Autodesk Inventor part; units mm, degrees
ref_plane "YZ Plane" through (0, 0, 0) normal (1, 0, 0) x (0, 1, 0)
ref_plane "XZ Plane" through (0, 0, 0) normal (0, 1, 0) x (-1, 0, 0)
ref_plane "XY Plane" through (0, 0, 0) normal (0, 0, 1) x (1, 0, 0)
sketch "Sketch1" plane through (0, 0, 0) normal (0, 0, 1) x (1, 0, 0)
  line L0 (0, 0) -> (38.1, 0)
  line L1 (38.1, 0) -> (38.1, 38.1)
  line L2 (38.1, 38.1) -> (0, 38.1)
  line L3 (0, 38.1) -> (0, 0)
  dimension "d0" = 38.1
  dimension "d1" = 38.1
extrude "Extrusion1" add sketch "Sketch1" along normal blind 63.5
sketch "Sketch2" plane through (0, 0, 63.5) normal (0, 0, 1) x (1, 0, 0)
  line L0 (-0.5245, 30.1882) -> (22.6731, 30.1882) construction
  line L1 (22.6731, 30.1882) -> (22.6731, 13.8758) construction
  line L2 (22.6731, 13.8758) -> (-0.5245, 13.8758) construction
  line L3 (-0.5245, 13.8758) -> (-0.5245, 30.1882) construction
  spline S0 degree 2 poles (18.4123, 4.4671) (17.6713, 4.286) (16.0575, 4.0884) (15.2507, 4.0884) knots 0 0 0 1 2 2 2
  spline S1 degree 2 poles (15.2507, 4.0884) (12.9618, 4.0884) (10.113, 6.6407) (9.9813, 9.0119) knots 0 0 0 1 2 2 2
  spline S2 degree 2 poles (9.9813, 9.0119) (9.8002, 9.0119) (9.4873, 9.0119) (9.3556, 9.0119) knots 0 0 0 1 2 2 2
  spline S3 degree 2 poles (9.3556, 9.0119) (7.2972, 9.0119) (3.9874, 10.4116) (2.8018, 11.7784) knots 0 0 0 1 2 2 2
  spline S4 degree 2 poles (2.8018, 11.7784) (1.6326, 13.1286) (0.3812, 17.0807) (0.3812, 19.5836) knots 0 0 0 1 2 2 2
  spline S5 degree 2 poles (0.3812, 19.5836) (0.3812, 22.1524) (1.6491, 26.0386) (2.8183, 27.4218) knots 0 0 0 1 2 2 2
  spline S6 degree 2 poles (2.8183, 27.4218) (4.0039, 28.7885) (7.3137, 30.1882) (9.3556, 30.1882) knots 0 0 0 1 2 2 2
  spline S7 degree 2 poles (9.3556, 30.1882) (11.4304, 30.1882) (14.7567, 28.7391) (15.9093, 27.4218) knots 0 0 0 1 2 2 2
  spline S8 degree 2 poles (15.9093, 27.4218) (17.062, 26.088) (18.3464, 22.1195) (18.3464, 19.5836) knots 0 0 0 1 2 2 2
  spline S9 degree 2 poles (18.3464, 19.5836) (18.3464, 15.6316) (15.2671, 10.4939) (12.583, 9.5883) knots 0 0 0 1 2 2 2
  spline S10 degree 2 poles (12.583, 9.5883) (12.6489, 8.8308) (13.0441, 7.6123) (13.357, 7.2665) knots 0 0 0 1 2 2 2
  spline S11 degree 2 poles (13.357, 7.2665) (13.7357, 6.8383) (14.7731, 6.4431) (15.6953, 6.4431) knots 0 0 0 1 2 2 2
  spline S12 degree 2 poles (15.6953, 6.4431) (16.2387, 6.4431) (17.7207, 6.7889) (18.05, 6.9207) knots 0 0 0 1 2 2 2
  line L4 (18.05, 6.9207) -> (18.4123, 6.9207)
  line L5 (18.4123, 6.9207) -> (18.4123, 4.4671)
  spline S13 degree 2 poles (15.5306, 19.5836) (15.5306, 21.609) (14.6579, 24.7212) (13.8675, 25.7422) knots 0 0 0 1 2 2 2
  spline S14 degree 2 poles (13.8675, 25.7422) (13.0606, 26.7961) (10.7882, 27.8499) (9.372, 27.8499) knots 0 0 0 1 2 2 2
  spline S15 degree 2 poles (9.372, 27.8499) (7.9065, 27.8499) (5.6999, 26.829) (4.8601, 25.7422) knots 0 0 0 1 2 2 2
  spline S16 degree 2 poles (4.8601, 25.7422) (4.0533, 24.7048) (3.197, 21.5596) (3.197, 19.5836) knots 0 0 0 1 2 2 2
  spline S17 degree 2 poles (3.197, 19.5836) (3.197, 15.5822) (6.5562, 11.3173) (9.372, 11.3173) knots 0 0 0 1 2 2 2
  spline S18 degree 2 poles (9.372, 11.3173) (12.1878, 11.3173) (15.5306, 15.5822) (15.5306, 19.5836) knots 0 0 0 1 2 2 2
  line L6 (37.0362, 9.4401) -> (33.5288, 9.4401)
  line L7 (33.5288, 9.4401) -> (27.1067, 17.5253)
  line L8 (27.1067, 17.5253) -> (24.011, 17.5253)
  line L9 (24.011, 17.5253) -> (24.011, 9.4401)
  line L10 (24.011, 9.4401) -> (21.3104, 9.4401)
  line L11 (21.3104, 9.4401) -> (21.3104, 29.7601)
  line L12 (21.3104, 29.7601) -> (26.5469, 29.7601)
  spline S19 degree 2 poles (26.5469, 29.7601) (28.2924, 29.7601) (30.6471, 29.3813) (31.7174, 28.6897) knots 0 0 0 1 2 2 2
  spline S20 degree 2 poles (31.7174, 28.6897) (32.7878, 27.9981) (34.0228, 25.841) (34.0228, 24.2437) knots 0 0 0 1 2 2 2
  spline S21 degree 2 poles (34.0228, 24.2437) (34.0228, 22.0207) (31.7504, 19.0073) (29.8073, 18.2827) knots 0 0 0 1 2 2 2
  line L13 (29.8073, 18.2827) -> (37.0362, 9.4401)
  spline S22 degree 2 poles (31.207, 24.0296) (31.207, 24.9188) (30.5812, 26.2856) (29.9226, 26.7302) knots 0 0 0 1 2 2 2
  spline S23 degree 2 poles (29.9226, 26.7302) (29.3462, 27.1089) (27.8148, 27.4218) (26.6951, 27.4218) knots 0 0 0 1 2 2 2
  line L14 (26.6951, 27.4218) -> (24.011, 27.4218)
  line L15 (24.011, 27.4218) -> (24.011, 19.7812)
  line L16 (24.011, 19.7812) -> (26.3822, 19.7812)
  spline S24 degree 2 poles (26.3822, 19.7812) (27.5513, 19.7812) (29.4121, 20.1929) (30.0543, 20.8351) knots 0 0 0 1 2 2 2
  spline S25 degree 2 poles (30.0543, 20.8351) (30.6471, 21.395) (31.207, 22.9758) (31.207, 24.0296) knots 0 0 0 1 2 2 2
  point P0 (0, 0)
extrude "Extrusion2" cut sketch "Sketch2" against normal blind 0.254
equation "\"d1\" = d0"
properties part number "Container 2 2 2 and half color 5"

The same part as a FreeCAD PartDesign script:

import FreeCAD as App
import Part
import Sketcher
Q = App.Units.Quantity

doc = App.newDocument("Part")
params = doc.addObject("Spreadsheet::Sheet", "Params")
for row, (alias, value) in enumerate([
    ("sketch1_width", "1.5 in"),
    ("pad1_length", "2.5 in"),
    ("sketch2_height", "0.8 in"),
    ("pocket1_length", "0.01 in"),
], start=1):
    params.set(f"A{row}", alias)
    params.set(f"B{row}", "=" + value)
    params.setAlias(f"B{row}", alias)

body = doc.addObject("PartDesign::Body", "Body")

# Sketch on XY plane
sketch1 = body.newObject("Sketcher::SketchObject", "Sketch")
sketch1.AttachmentSupport = (doc.getObject("XY_Plane"), [""])
sketch1.MapMode = "FlatFace"
sketch1.addGeometry([
    Part.LineSegment(App.Vector(0, 38, 0), App.Vector(0, 0, 0)),
    Part.LineSegment(App.Vector(0, 0, 0), App.Vector(38, 0, 0)),
    Part.LineSegment(App.Vector(38, 0, 0), App.Vector(38, 38, 0)),
    Part.LineSegment(App.Vector(38, 38, 0), App.Vector(0, 38, 0)),
], False)
sketch1.addConstraint([
    Sketcher.Constraint("Coincident", 0, 2, 1, 1),
    Sketcher.Constraint("Coincident", 1, 2, 2, 1),
    Sketcher.Constraint("Coincident", 2, 2, 3, 1),
    Sketcher.Constraint("Coincident", 3, 2, 0, 1),
    Sketcher.Constraint("Vertical", 0),
    Sketcher.Constraint("Horizontal", 1),
    Sketcher.Constraint("Vertical", 2),
    Sketcher.Constraint("Horizontal", 3),
    Sketcher.Constraint("Coincident", 0, 2, -1, 1),
    Sketcher.Constraint("Equal", 3, 0),
    Sketcher.Constraint("DistanceX", 1, 1, 1, 2, Q("1.5 in")),
])
sketch1.setExpression("Constraints[10]", "Params.sketch1_width")
pad1 = body.newObject("PartDesign::Pad", "Pad")
pad1.Profile = sketch1
pad1.setExpression("Length", "Params.pad1_length")

# Sketch on XY plane
sketch2 = body.newObject("Sketcher::SketchObject", "Sketch001")
sketch2.AttachmentSupport = (doc.getObject("XY_Plane"), [""])
sketch2.MapMode = "FlatFace"
sketch2.AttachmentOffset = App.Placement(App.Vector(0, 0, 2.5 * 25.4), App.Rotation())
sketch2.addGeometry([
    Part.BSplineCurve([App.Vector(18.4123, 4.4671, 0), App.Vector(17.6713, 4.286, 0), App.Vector(16.0575, 4.0884, 0), App.Vector(15.2507, 4.0884, 0)], [3, 1, 3], [0, 1, 2], False, 2, [1, 1, 1, 1], False),  # 0
    Part.LineSegment(App.Vector(18.4123, 4.4671, 0), App.Vector(18.4123, 6.9207, 0)),  # 1
    Part.LineSegment(App.Vector(18.4123, 6.9207, 0), App.Vector(18.05, 6.9207, 0)),  # 2
    Part.BSplineCurve([App.Vector(15.6953, 6.4431, 0), App.Vector(16.2387, 6.4431, 0), App.Vector(17.7207, 6.7889, 0), App.Vector(18.05, 6.9207, 0)], [3, 1, 3], [0, 1, 2], False, 2, [1, 1, 1, 1], False),  # 3
    Part.BSplineCurve([App.Vector(13.357, 7.2665, 0), App.Vector(13.7357, 6.8383, 0), App.Vector(14.7731, 6.4431, 0), App.Vector(15.6953, 6.4431, 0)], [3, 1, 3], [0, 1, 2], False, 2, [1, 1, 1, 1], False),  # 4
    Part.BSplineCurve([App.Vector(12.583, 9.5883, 0), App.Vector(12.6489, 8.8308, 0), App.Vector(13.0441, 7.6123, 0), App.Vector(13.357, 7.2665, 0)], [3, 1, 3], [0, 1, 2], False, 2, [1, 1, 1, 1], False),  # 5
    Part.BSplineCurve([App.Vector(18.3464, 19.5836, 0), App.Vector(18.3464, 15.6316, 0), App.Vector(15.2671, 10.4939, 0), App.Vector(12.583, 9.5883, 0)], [3, 1, 3], [0, 1, 2], False, 2, [1, 1, 1, 1], False),  # 6
    Part.BSplineCurve([App.Vector(15.9093, 27.4218, 0), App.Vector(17.062, 26.088, 0), App.Vector(18.3464, 22.1195, 0), App.Vector(18.3464, 19.5836, 0)], [3, 1, 3], [0, 1, 2], False, 2, [1, 1, 1, 1], False),  # 7
    Part.BSplineCurve([App.Vector(9.3556, 30.1882, 0), App.Vector(11.4304, 30.1882, 0), App.Vector(14.7567, 28.7391, 0), App.Vector(15.9093, 27.4218, 0)], [3, 1, 3], [0, 1, 2], False, 2, [1, 1, 1, 1], False),  # 8
    Part.BSplineCurve([App.Vector(2.8183, 27.4218, 0), App.Vector(4.0039, 28.7885, 0), App.Vector(7.3137, 30.1882, 0), App.Vector(9.3556, 30.1882, 0)], [3, 1, 3], [0, 1, 2], False, 2, [1, 1, 1, 1], False),  # 9
    Part.BSplineCurve([App.Vector(0.3812, 19.5836, 0), App.Vector(0.3812, 22.1524, 0), App.Vector(1.6491, 26.0386, 0), App.Vector(2.8183, 27.4218, 0)], [3, 1, 3], [0, 1, 2], False, 2, [1, 1, 1, 1], False),  # 10
    Part.BSplineCurve([App.Vector(2.8018, 11.7784, 0), App.Vector(1.6326, 13.1286, 0), App.Vector(0.3812, 17.0807, 0), App.Vector(0.3812, 19.5836, 0)], [3, 1, 3], [0, 1, 2], False, 2, [1, 1, 1, 1], False),  # 11
    Part.BSplineCurve([App.Vector(9.3556, 9.0119, 0), App.Vector(7.2972, 9.0119, 0), App.Vector(3.9874, 10.4116, 0), App.Vector(2.8018, 11.7784, 0)], [3, 1, 3], [0, 1, 2], False, 2, [1, 1, 1, 1], False),  # 12
    Part.BSplineCurve([App.Vector(9.9813, 9.0119, 0), App.Vector(9.8002, 9.0119, 0), App.Vector(9.4873, 9.0119, 0), App.Vector(9.3556, 9.0119, 0)], [3, 1, 3], [0, 1, 2], False, 2, [1, 1, 1, 1], False),  # 13
    Part.BSplineCurve([App.Vector(15.2507, 4.0884, 0), App.Vector(12.9618, 4.0884, 0), App.Vector(10.113, 6.6407, 0), App.Vector(9.9813, 9.0119, 0)], [3, 1, 3], [0, 1, 2], False, 2, [1, 1, 1, 1], False),  # 14
    Part.BSplineCurve([App.Vector(15.5306, 19.5836, 0), App.Vector(15.5306, 21.609, 0), App.Vector(14.6579, 24.7212, 0), App.Vector(13.8675, 25.7422, 0)], [3, 1, 3], [0, 1, 2], False, 2, [1, 1, 1, 1], False),  # 15
    Part.BSplineCurve([App.Vector(9.372, 11.3173, 0), App.Vector(12.1878, 11.3173, 0), App.Vector(15.5306, 15.5822, 0), App.Vector(15.5306, 19.5836, 0)], [3, 1, 3], [0, 1, 2], False, 2, [1, 1, 1, 1], False),  # 16
    Part.BSplineCurve([App.Vector(3.197, 19.5836, 0), App.Vector(3.197, 15.5822, 0), App.Vector(6.5562, 11.3173, 0), App.Vector(9.372, 11.3173, 0)], [3, 1, 3], [0, 1, 2], False, 2, [1, 1, 1, 1], False),  # 17
    Part.BSplineCurve([App.Vector(4.8601, 25.7422, 0), App.Vector(4.0533, 24.7048, 0), App.Vector(3.197, 21.5596, 0), App.Vector(3.197, 19.5836, 0)], [3, 1, 3], [0, 1, 2], False, 2, [1, 1, 1, 1], False),  # 18
    Part.BSplineCurve([App.Vector(9.372, 27.8499, 0), App.Vector(7.9065, 27.8499, 0), App.Vector(5.6999, 26.829, 0), App.Vector(4.8601, 25.7422, 0)], [3, 1, 3], [0, 1, 2], False, 2, [1, 1, 1, 1], False),  # 19
    Part.BSplineCurve([App.Vector(13.8675, 25.7422, 0), App.Vector(13.0606, 26.7961, 0), App.Vector(10.7882, 27.8499, 0), App.Vector(9.372, 27.8499, 0)], [3, 1, 3], [0, 1, 2], False, 2, [1, 1, 1, 1], False),  # 20
    Part.LineSegment(App.Vector(33.5288, 9.4401, 0), App.Vector(37.0362, 9.4401, 0)),  # 21
    Part.LineSegment(App.Vector(37.0362, 9.4401, 0), App.Vector(29.8073, 18.2827, 0)),  # 22
    Part.BSplineCurve([App.Vector(34.0228, 24.2437, 0), App.Vector(34.0228, 22.0207, 0), App.Vector(31.7504, 19.0073, 0), App.Vector(29.8073, 18.2827, 0)], [3, 1, 3], [0, 1, 2], False, 2, [1, 1, 1, 1], False),  # 23
    Part.BSplineCurve([App.Vector(31.7174, 28.6897, 0), App.Vector(32.7878, 27.9981, 0), App.Vector(34.0228, 25.841, 0), App.Vector(34.0228, 24.2437, 0)], [3, 1, 3], [0, 1, 2], False, 2, [1, 1, 1, 1], False),  # 24
    Part.BSplineCurve([App.Vector(26.5469, 29.7601, 0), App.Vector(28.2924, 29.7601, 0), App.Vector(30.6471, 29.3813, 0), App.Vector(31.7174, 28.6897, 0)], [3, 1, 3], [0, 1, 2], False, 2, [1, 1, 1, 1], False),  # 25
    Part.LineSegment(App.Vector(26.5469, 29.7601, 0), App.Vector(21.3104, 29.7601, 0)),  # 26
    Part.LineSegment(App.Vector(21.3104, 29.7601, 0), App.Vector(21.3104, 9.4401, 0)),  # 27
    Part.LineSegment(App.Vector(21.3104, 9.4401, 0), App.Vector(24.011, 9.4401, 0)),  # 28
    Part.LineSegment(App.Vector(24.011, 9.4401, 0), App.Vector(24.011, 17.5253, 0)),  # 29
    Part.LineSegment(App.Vector(24.011, 17.5253, 0), App.Vector(27.1067, 17.5253, 0)),  # 30
    Part.LineSegment(App.Vector(27.1067, 17.5253, 0), App.Vector(33.5288, 9.4401, 0)),  # 31
    Part.BSplineCurve([App.Vector(31.207, 24.0296, 0), App.Vector(31.207, 24.9188, 0), App.Vector(30.5812, 26.2856, 0), App.Vector(29.9226, 26.7302, 0)], [3, 1, 3], [0, 1, 2], False, 2, [1, 1, 1, 1], False),  # 32
    Part.BSplineCurve([App.Vector(30.0543, 20.8351, 0), App.Vector(30.6471, 21.395, 0), App.Vector(31.207, 22.9758, 0), App.Vector(31.207, 24.0296, 0)], [3, 1, 3], [0, 1, 2], False, 2, [1, 1, 1, 1], False),  # 33
    Part.BSplineCurve([App.Vector(26.3822, 19.7812, 0), App.Vector(27.5513, 19.7812, 0), App.Vector(29.4121, 20.1929, 0), App.Vector(30.0543, 20.8351, 0)], [3, 1, 3], [0, 1, 2], False, 2, [1, 1, 1, 1], False),  # 34
    Part.LineSegment(App.Vector(26.3822, 19.7812, 0), App.Vector(24.011, 19.7812, 0)),  # 35
    Part.LineSegment(App.Vector(24.011, 19.7812, 0), App.Vector(24.011, 27.4218, 0)),  # 36
    Part.LineSegment(App.Vector(24.011, 27.4218, 0), App.Vector(26.6951, 27.4218, 0)),  # 37
    Part.BSplineCurve([App.Vector(29.9226, 26.7302, 0), App.Vector(29.3462, 27.1089, 0), App.Vector(27.8148, 27.4218, 0), App.Vector(26.6951, 27.4218, 0)], [3, 1, 3], [0, 1, 2], False, 2, [1, 1, 1, 1], False),  # 38
], False)
sketch2.addConstraint([
    Sketcher.Constraint("Block", 0),
    Sketcher.Constraint("Block", 3),
    Sketcher.Constraint("Block", 4),
    Sketcher.Constraint("Block", 5),
    Sketcher.Constraint("Block", 6),
    Sketcher.Constraint("Block", 7),
    Sketcher.Constraint("Block", 8),
    Sketcher.Constraint("Block", 9),
    Sketcher.Constraint("Block", 10),
    Sketcher.Constraint("Block", 11),
    Sketcher.Constraint("Block", 12),
    Sketcher.Constraint("Block", 13),
    Sketcher.Constraint("Block", 14),
    Sketcher.Constraint("Block", 15),
    Sketcher.Constraint("Block", 16),
    Sketcher.Constraint("Block", 17),
    Sketcher.Constraint("Block", 18),
    Sketcher.Constraint("Block", 19),
    Sketcher.Constraint("Block", 20),
    Sketcher.Constraint("Block", 23),
    Sketcher.Constraint("Block", 24),
    Sketcher.Constraint("Block", 25),
    Sketcher.Constraint("Block", 32),
    Sketcher.Constraint("Block", 33),
    Sketcher.Constraint("Block", 34),
    Sketcher.Constraint("Block", 38),
    Sketcher.Constraint("Coincident", 0, 1, 1, 1),
    Sketcher.Constraint("Coincident", 1, 2, 2, 1),
    Sketcher.Constraint("Coincident", 2, 2, 3, 2),
    Sketcher.Constraint("Coincident", 21, 2, 22, 1),
    Sketcher.Constraint("Coincident", 22, 2, 23, 2),
    Sketcher.Constraint("Coincident", 25, 1, 26, 1),
    Sketcher.Constraint("Coincident", 26, 2, 27, 1),
    Sketcher.Constraint("Coincident", 27, 2, 28, 1),
    Sketcher.Constraint("Coincident", 28, 2, 29, 1),
    Sketcher.Constraint("Coincident", 29, 2, 30, 1),
    Sketcher.Constraint("Coincident", 30, 2, 31, 1),
    Sketcher.Constraint("Coincident", 31, 2, 21, 1),
    Sketcher.Constraint("Coincident", 34, 1, 35, 1),
    Sketcher.Constraint("Coincident", 35, 2, 36, 1),
    Sketcher.Constraint("Coincident", 36, 2, 37, 1),
    Sketcher.Constraint("Coincident", 37, 2, 38, 2),
    Sketcher.Constraint("Vertical", 1),
    Sketcher.Constraint("Horizontal", 2),
    Sketcher.Constraint("Horizontal", 21),
    Sketcher.Constraint("Horizontal", 26),
    Sketcher.Constraint("Vertical", 27),
    Sketcher.Constraint("Horizontal", 28),
    Sketcher.Constraint("Vertical", 29),
    Sketcher.Constraint("Horizontal", 30),
    Sketcher.Constraint("Horizontal", 35),
    Sketcher.Constraint("Vertical", 36),
    Sketcher.Constraint("Horizontal", 37),
    Sketcher.Constraint("Horizontal", 21, 2, 27, 2),
    Sketcher.Constraint("Vertical", 29, 2, 35, 2),
    Sketcher.Constraint("DistanceY", 27, 2, 27, 1, Q("0.8 in")),
    Sketcher.Constraint("Angle", 31, Q("-51.5398 deg")),
    Sketcher.Constraint("DistanceX", -1, 1, 26, 2, Q("0.839 in")),
    Sketcher.Constraint("Distance", 31, Q("0.4065 in")),
    Sketcher.Constraint("DistanceX", 21, 1, 21, 2, Q("3.5074 mm")),
    Sketcher.Constraint("DistanceX", 28, 1, 28, 2, Q("2.7006 mm")),
    Sketcher.Constraint("DistanceX", 30, 1, 30, 2, Q("3.0957 mm")),
])
sketch2.setExpression("Constraints[55]", "Params.sketch2_height")
pocket1 = body.newObject("PartDesign::Pocket", "Pocket")
pocket1.Profile = sketch2
pocket1.setExpression("Length", "Params.pocket1_length")

doc.recompute()
